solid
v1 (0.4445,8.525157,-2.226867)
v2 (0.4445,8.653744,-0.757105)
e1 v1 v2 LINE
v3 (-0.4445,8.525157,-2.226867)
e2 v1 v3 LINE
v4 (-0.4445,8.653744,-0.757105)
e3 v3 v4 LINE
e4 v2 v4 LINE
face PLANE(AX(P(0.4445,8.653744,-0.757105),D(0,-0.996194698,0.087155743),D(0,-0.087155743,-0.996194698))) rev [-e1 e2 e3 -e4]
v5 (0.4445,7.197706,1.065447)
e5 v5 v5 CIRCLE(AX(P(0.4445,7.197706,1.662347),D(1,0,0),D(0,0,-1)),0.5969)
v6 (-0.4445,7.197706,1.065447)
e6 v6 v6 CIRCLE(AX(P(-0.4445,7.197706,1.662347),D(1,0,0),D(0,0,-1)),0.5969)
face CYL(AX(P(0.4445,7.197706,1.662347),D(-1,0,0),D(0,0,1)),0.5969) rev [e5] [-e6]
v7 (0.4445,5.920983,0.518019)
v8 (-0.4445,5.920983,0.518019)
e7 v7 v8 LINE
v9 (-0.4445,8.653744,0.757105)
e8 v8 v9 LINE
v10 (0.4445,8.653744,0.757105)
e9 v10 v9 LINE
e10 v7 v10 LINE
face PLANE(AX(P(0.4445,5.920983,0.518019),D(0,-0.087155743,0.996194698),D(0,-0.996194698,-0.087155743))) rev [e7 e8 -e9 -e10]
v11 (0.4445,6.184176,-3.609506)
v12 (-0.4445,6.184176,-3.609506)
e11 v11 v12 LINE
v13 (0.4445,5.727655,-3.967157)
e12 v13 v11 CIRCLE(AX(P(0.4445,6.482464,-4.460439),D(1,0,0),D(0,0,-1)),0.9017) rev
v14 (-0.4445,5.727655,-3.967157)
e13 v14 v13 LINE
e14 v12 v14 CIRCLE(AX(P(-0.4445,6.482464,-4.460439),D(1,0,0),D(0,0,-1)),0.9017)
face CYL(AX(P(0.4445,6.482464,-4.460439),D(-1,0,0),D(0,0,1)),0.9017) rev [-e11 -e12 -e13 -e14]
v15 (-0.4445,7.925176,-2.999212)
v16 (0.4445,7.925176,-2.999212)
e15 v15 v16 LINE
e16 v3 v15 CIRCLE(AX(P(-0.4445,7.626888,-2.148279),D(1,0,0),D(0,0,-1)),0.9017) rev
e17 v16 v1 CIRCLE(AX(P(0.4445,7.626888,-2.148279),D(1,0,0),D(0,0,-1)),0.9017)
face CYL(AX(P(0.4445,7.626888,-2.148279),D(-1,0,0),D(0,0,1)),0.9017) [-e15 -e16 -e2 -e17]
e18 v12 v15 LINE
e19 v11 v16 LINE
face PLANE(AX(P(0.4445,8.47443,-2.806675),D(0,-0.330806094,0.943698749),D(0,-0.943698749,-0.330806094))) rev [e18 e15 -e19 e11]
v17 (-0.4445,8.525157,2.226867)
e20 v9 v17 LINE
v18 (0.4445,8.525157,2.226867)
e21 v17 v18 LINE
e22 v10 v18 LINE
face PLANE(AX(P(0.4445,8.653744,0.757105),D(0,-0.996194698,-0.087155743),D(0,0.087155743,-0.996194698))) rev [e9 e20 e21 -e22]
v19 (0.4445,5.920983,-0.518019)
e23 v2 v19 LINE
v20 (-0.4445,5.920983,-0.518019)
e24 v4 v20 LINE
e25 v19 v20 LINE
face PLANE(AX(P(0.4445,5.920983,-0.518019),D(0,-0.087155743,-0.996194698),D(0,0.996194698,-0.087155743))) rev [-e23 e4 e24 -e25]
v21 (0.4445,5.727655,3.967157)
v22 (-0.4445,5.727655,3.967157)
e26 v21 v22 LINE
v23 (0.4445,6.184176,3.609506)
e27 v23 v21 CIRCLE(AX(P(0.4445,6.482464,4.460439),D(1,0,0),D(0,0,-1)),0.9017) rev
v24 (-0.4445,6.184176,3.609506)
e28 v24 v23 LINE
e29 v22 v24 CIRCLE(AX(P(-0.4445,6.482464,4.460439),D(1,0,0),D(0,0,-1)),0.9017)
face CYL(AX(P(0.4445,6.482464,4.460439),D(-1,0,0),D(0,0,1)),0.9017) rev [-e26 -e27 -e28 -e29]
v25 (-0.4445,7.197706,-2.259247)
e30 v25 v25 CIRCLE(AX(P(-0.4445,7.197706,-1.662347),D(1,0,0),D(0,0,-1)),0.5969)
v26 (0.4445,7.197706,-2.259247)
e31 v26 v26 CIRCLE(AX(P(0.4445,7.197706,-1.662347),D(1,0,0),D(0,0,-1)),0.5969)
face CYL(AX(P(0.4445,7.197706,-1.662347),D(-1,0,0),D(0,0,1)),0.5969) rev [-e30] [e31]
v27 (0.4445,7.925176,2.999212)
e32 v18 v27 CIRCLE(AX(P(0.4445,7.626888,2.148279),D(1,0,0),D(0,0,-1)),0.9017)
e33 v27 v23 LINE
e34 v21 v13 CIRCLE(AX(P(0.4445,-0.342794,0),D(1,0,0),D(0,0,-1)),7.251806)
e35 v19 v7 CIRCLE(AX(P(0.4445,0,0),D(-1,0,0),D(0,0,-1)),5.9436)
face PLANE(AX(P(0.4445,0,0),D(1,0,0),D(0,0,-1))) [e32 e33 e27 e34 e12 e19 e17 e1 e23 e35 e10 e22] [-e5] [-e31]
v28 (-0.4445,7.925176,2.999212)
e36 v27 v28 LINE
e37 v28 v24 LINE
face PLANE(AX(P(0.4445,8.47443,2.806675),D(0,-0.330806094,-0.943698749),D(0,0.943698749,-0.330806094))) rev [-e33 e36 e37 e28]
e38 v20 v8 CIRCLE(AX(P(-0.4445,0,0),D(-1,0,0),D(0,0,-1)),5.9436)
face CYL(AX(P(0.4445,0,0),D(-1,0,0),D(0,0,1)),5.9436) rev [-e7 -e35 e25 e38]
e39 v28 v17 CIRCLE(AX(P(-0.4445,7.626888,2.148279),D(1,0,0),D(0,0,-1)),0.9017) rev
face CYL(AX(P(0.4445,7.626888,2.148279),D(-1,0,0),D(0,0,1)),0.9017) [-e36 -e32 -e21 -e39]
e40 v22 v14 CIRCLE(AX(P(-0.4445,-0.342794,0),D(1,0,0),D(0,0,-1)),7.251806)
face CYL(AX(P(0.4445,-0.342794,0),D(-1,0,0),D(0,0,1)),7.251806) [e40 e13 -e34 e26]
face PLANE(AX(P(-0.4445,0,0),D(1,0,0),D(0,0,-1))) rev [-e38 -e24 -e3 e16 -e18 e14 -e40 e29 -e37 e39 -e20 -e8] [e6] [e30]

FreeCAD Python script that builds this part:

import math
import FreeCAD as App
import Part
import Sketcher

V = App.Vector
Q = App.Units.Quantity


def edges_at(feature, points):
    """Names of the edges that pass closest to the given points."""
    edges = feature.Shape.Edges
    near = lambda p: min(range(len(edges)), key=lambda i: edges[i].distToShape(Part.Vertex(*p))[0])
    return sorted({f"Edge{near(p) + 1}" for p in points})

doc = App.newDocument("Part")
body = doc.addObject("PartDesign::Body", "Body")

# Sketch on YZ plane
sketch1 = body.newObject("Sketcher::SketchObject", "Sketch")
sketch1.AttachmentSupport = (doc.getObject("YZ_Plane"), [""])
sketch1.MapMode = "FlatFace"
sketch1.addGeometry([
    Part.LineSegment(V(5.9, 0.5, 0), V(8.7, 0.8, 0)),  # 0
    Part.LineSegment(V(8.7, 0.8, 0), V(8.5, 2.8, 0)),  # 1
    Part.LineSegment(V(8.5, 2.8, 0), V(5.9, 3.7, 0)),  # 2
    Part.ArcOfCircle(Part.Circle(V(-0.3, 0, 0), V(0, 0, 1), 7.3), math.radians(31), math.radians(329)),  # 3
    Part.LineSegment(V(5.9, -3.7, 0), V(8.5, -2.8, 0)),  # 4
    Part.LineSegment(V(8.5, -2.8, 0), V(8.7, -0.8, 0)),  # 5
    Part.LineSegment(V(8.7, -0.8, 0), V(5.9, -0.5, 0)),  # 6
    Part.ArcOfCircle(Part.Circle(V(0, 0, 0), V(0, 0, 1), 5.9), math.radians(5), math.radians(355)),  # 7
    Part.Circle(V(7.2, 1.7, 0), V(0, 0, 1), 0.6),  # 8
    Part.Circle(V(7.2, -1.7, 0), V(0, 0, 1), 0.6),  # 9
], False)
sketch1.addConstraint([
    Sketcher.Constraint("Coincident", 0, 2, 1, 1),
    Sketcher.Constraint("Coincident", 1, 2, 2, 1),
    Sketcher.Constraint("Coincident", 2, 2, 3, 1),
    Sketcher.Constraint("Coincident", 3, 2, 4, 1),
    Sketcher.Constraint("Coincident", 4, 2, 5, 1),
    Sketcher.Constraint("Coincident", 5, 2, 6, 1),
    Sketcher.Constraint("Coincident", 6, 2, 7, 2),
    Sketcher.Constraint("Coincident", 7, 1, 0, 1),
    Sketcher.Constraint("Coincident", 7, 3, -1, 1),
    Sketcher.Constraint("Equal", 8, 9),
    Sketcher.Constraint("Symmetric", 8, 3, 9, 3, -1),
    Sketcher.Constraint("Symmetric", 2, 2, 3, 2, -1),
    Sketcher.Constraint("Symmetric", 1, 2, 4, 2, -1),
    Sketcher.Constraint("Symmetric", 0, 2, 5, 2, -1),
    Sketcher.Constraint("Perpendicular", 0, 1),
    Sketcher.Constraint("Perpendicular", 5, 6),
    Sketcher.Constraint("Equal", 0, 2),
    Sketcher.Constraint("Diameter", 8, Q("0.047 in")),
    Sketcher.Constraint("Angle", 0, Q("5 deg")),
    Sketcher.Constraint("Radius", 7, Q("0.234 in")),
    Sketcher.Constraint("Distance", 0, Q("0.108 in")),
    Sketcher.Constraint("Distance", 1, Q("0.081 in")),
    Sketcher.Constraint("Radius", 3, 7.251806),
    Sketcher.Constraint("DistanceX", 3, 3, 8, 3, 7.5405),
    Sketcher.Constraint("DistanceX", -1, 1, 1, 2, 8.47443),
    Sketcher.Constraint("DistanceY", 9, 3, 0, 2, 2.419452),
    Sketcher.Constraint("DistanceX", 3, 3, 0, 2, 8.996538),
])
pad1 = body.newObject("PartDesign::Pad", "Pad")
pad1.Profile = sketch1
pad1.Length = Q("0.035 in")
pad1.Midplane = True
doc.recompute()

fillet = body.newObject("PartDesign::Fillet", "Fillet")
fillet.Base = (pad1, edges_at(pad1, [
    (0, 8.474, -2.807),
    (0, 5.886, -3.714),
    (0, 5.886, 3.714),
    (0, 8.474, 2.807),
]))
fillet.Radius = Q("0.0355 in")

doc.recompute()
